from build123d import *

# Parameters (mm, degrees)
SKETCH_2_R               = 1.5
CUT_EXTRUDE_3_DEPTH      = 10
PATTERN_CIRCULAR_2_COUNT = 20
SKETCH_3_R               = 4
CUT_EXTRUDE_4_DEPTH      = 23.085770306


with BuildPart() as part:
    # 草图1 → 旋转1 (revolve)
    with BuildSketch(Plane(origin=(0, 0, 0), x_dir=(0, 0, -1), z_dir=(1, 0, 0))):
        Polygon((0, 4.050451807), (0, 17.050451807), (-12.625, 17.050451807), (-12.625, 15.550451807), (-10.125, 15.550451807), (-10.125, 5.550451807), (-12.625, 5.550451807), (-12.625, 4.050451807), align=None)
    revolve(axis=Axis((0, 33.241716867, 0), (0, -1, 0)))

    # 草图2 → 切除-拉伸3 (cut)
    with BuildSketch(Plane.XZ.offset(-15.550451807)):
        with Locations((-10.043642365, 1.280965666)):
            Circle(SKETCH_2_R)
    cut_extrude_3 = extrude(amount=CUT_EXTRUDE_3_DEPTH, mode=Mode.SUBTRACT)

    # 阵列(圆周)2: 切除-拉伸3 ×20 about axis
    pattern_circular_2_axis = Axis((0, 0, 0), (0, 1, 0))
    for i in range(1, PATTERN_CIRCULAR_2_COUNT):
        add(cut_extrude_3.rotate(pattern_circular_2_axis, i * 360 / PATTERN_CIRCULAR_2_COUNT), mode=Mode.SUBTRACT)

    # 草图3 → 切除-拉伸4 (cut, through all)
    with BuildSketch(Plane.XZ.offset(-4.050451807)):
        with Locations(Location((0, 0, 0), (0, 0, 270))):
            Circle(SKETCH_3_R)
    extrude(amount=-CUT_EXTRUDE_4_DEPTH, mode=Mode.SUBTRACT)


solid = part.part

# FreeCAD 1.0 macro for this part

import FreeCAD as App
import Part
import Sketcher

V = App.Vector
Q = App.Units.Quantity

doc = App.newDocument("Part")
params = doc.addObject("Spreadsheet::Sheet", "Params")
for row, (alias, value) in enumerate([
    ("sketch1_width", "13 mm"),
    ("sketch1_width2", "10 mm"),
    ("sketch1_height", "2.5 mm"),
    ("revolution_angle", "360 deg"),
    ("sketch2_diameter", "3 mm"),
    ("pocket1_length", "10 mm"),
    ("sketch3_diameter", "8 mm"),
], start=1):
    params.set(f"A{row}", alias)
    params.set(f"B{row}", "=" + value)
    params.setAlias(f"B{row}", alias)

body = doc.addObject("PartDesign::Body", "Body")

sketch1 = body.newObject("Sketcher::SketchObject", "Sketch")
sketch1.AttachmentSupport = (doc.getObject("YZ_Plane"), [""])
sketch1.MapMode = "FlatFace"
sketch1.addGeometry([
    Part.LineSegment(V(4.050452, 0, 0), V(17.050452, 0, 0)),
    Part.LineSegment(V(17.050452, 0, 0), V(17.050452, 12.625, 0)),
    Part.LineSegment(V(17.050452, 12.625, 0), V(15.550452, 12.625, 0)),
    Part.LineSegment(V(15.550452, 12.625, 0), V(15.550452, 10.125, 0)),
    Part.LineSegment(V(15.550452, 10.125, 0), V(5.550452, 10.125, 0)),
    Part.LineSegment(V(5.550452, 10.125, 0), V(5.550452, 12.625, 0)),
    Part.LineSegment(V(5.550452, 12.625, 0), V(4.050452, 12.625, 0)),
    Part.LineSegment(V(4.050452, 12.625, 0), V(4.050452, 0, 0)),
], False)
sketch1.addConstraint([
    Sketcher.Constraint("Coincident", 0, 2, 1, 1),
    Sketcher.Constraint("Coincident", 1, 2, 2, 1),
    Sketcher.Constraint("Coincident", 2, 2, 3, 1),
    Sketcher.Constraint("Coincident", 3, 2, 4, 1),
    Sketcher.Constraint("Coincident", 4, 2, 5, 1),
    Sketcher.Constraint("Coincident", 5, 2, 6, 1),
    Sketcher.Constraint("Coincident", 6, 2, 7, 1),
    Sketcher.Constraint("Coincident", 7, 2, 0, 1),
    Sketcher.Constraint("Horizontal", 0),
    Sketcher.Constraint("Vertical", 1),
    Sketcher.Constraint("Horizontal", 2),
    Sketcher.Constraint("Vertical", 3),
    Sketcher.Constraint("Horizontal", 4),
    Sketcher.Constraint("Vertical", 5),
    Sketcher.Constraint("Horizontal", 6),
    Sketcher.Constraint("Vertical", 7),
    Sketcher.Constraint("PointOnObject", 0, 2, -1),
    Sketcher.Constraint("Horizontal", 2, 2, 5, 2),
    Sketcher.Constraint("Equal", 2, 6),
    Sketcher.Constraint("DistanceX", 0, 1, 0, 2, Q("13 mm")),
    Sketcher.Constraint("DistanceX", 4, 2, 4, 1, Q("10 mm")),
    Sketcher.Constraint("DistanceY", 3, 2, 3, 1, Q("2.5 mm")),
    Sketcher.Constraint("DistanceY", 1, 1, 1, 2, Q("12.625 mm")),
    Sketcher.Constraint("DistanceX", -1, 1, 0, 2, Q("17.050452 mm")),
])
sketch1.setExpression("Constraints[19]", "Params.sketch1_width")
sketch1.setExpression("Constraints[20]", "Params.sketch1_width2")
sketch1.setExpression("Constraints[21]", "Params.sketch1_height")
revolution = body.newObject("PartDesign::Revolution", "Revolution")
revolution.Profile = sketch1
revolution.ReferenceAxis = (sketch1, ["H_Axis"])
revolution.setExpression("Angle", "Params.revolution_angle")

sketch2 = body.newObject("Sketcher::SketchObject", "Sketch001")
sketch2.AttachmentSupport = (doc.getObject("XZ_Plane"), [""])
sketch2.MapMode = "FlatFace"
sketch2.AttachmentOffset = App.Placement(V(0, 0, -15.550452), App.Rotation())
sketch2.addGeometry(Part.Circle(V(-10.043642, 1.280966, 0), V(0, 0, 1), 1.5), False)
sketch2.addConstraint([
    Sketcher.Constraint("Diameter", 0, Q("3 mm")),
    Sketcher.Constraint("DistanceX", 0, 3, -1, 1, Q("10.043642 mm")),
    Sketcher.Constraint("DistanceY", -1, 1, 0, 3, Q("1.280966 mm")),
])
sketch2.setExpression("Constraints[0]", "Params.sketch2_diameter")
pocket1 = body.newObject("PartDesign::Pocket", "Pocket")
pocket1.Profile = sketch2
pocket1.setExpression("Length", "Params.pocket1_length")
pocket1.Reversed = True
doc.recompute()

polarpattern = body.newObject("PartDesign::PolarPattern", "PolarPattern")
polarpattern.Originals = [pocket1]
polarpattern.Axis = (doc.getObject("Y_Axis"), [""])
polarpattern.Angle = 360
polarpattern.Occurrences = 20
body.Tip = polarpattern

sketch3 = body.newObject("Sketcher::SketchObject", "Sketch002")
sketch3.AttachmentSupport = (doc.getObject("XZ_Plane"), [""])
sketch3.MapMode = "FlatFace"
sketch3.AttachmentOffset = App.Placement(V(0, 0, -4.050452), App.Rotation())
sketch3.addGeometry(Part.Circle(V(0, 0, 0), V(0, 0, 1), 4), False)
sketch3.addConstraint([
    Sketcher.Constraint("Coincident", 0, 3, -1, 1),
    Sketcher.Constraint("Diameter", 0, Q("8 mm")),
])
sketch3.setExpression("Constraints[1]", "Params.sketch3_diameter")
pocket2 = body.newObject("PartDesign::Pocket", "Pocket001")
pocket2.Profile = sketch3
pocket2.Type = "ThroughAll"

doc.recompute()
